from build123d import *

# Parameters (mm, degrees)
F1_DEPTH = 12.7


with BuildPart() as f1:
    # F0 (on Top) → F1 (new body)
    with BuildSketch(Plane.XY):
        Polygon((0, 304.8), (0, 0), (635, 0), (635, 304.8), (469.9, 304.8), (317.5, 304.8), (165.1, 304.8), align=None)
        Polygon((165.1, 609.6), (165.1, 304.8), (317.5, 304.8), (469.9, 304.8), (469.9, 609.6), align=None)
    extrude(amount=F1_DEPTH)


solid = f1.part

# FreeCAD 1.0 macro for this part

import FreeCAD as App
import Part
import Sketcher

V = App.Vector
Q = App.Units.Quantity


def add_polygon(sketch, points):
    """Adds a closed chain of lines whose ends are joined by coincident constraints."""
    first, n = sketch.GeometryCount, len(points)
    for a, b in zip(points, points[1:] + points[:1]):
        sketch.addGeometry(Part.LineSegment(App.Vector(*a, 0), App.Vector(*b, 0)), False)
    for i in range(n):
        sketch.addConstraint(Sketcher.Constraint("Coincident", first + i, 2, first + (i + 1) % n, 1))

doc = App.newDocument("Part")
body = doc.addObject("PartDesign::Body", "Body")

sketch1 = body.newObject("Sketcher::SketchObject", "Sketch")
sketch1.AttachmentSupport = (doc.getObject("XY_Plane"), [""])
sketch1.MapMode = "FlatFace"
add_polygon(sketch1, [(0, 305), (0, 0), (635, 0), (635, 305), (470, 305), (470, 610), (165, 610), (165, 305)])
sketch1.addConstraint(Sketcher.Constraint("Vertical", 0))
sketch1.addConstraint(Sketcher.Constraint("Horizontal", 1))
sketch1.addConstraint(Sketcher.Constraint("Vertical", 2))
sketch1.addConstraint(Sketcher.Constraint("Horizontal", 3))
sketch1.addConstraint(Sketcher.Constraint("Vertical", 4))
sketch1.addConstraint(Sketcher.Constraint("Horizontal", 5))
sketch1.addConstraint(Sketcher.Constraint("Vertical", 6))
sketch1.addConstraint(Sketcher.Constraint("Horizontal", 7))
sketch1.addConstraint(Sketcher.Constraint("Coincident", 0, 2, -1, 1))
sketch1.addConstraint(Sketcher.Constraint("Horizontal", 3, 2, 6, 2))
sketch1.addConstraint(Sketcher.Constraint("Equal", 3, 7))
sketch1.addConstraint(Sketcher.Constraint("Equal", 5, 0))
sketch1.addConstraint(Sketcher.Constraint("Equal", 2, 4))
sketch1.addConstraint(Sketcher.Constraint("DistanceX", 1, 1, 1, 2, Q("25 in")))
sketch1.addConstraint(Sketcher.Constraint("DistanceX", 5, 2, 5, 1, Q("12 in")))
pad1 = body.newObject("PartDesign::Pad", "Pad")
pad1.Profile = sketch1
pad1.Length = Q("0.5 in")

doc.recompute()
